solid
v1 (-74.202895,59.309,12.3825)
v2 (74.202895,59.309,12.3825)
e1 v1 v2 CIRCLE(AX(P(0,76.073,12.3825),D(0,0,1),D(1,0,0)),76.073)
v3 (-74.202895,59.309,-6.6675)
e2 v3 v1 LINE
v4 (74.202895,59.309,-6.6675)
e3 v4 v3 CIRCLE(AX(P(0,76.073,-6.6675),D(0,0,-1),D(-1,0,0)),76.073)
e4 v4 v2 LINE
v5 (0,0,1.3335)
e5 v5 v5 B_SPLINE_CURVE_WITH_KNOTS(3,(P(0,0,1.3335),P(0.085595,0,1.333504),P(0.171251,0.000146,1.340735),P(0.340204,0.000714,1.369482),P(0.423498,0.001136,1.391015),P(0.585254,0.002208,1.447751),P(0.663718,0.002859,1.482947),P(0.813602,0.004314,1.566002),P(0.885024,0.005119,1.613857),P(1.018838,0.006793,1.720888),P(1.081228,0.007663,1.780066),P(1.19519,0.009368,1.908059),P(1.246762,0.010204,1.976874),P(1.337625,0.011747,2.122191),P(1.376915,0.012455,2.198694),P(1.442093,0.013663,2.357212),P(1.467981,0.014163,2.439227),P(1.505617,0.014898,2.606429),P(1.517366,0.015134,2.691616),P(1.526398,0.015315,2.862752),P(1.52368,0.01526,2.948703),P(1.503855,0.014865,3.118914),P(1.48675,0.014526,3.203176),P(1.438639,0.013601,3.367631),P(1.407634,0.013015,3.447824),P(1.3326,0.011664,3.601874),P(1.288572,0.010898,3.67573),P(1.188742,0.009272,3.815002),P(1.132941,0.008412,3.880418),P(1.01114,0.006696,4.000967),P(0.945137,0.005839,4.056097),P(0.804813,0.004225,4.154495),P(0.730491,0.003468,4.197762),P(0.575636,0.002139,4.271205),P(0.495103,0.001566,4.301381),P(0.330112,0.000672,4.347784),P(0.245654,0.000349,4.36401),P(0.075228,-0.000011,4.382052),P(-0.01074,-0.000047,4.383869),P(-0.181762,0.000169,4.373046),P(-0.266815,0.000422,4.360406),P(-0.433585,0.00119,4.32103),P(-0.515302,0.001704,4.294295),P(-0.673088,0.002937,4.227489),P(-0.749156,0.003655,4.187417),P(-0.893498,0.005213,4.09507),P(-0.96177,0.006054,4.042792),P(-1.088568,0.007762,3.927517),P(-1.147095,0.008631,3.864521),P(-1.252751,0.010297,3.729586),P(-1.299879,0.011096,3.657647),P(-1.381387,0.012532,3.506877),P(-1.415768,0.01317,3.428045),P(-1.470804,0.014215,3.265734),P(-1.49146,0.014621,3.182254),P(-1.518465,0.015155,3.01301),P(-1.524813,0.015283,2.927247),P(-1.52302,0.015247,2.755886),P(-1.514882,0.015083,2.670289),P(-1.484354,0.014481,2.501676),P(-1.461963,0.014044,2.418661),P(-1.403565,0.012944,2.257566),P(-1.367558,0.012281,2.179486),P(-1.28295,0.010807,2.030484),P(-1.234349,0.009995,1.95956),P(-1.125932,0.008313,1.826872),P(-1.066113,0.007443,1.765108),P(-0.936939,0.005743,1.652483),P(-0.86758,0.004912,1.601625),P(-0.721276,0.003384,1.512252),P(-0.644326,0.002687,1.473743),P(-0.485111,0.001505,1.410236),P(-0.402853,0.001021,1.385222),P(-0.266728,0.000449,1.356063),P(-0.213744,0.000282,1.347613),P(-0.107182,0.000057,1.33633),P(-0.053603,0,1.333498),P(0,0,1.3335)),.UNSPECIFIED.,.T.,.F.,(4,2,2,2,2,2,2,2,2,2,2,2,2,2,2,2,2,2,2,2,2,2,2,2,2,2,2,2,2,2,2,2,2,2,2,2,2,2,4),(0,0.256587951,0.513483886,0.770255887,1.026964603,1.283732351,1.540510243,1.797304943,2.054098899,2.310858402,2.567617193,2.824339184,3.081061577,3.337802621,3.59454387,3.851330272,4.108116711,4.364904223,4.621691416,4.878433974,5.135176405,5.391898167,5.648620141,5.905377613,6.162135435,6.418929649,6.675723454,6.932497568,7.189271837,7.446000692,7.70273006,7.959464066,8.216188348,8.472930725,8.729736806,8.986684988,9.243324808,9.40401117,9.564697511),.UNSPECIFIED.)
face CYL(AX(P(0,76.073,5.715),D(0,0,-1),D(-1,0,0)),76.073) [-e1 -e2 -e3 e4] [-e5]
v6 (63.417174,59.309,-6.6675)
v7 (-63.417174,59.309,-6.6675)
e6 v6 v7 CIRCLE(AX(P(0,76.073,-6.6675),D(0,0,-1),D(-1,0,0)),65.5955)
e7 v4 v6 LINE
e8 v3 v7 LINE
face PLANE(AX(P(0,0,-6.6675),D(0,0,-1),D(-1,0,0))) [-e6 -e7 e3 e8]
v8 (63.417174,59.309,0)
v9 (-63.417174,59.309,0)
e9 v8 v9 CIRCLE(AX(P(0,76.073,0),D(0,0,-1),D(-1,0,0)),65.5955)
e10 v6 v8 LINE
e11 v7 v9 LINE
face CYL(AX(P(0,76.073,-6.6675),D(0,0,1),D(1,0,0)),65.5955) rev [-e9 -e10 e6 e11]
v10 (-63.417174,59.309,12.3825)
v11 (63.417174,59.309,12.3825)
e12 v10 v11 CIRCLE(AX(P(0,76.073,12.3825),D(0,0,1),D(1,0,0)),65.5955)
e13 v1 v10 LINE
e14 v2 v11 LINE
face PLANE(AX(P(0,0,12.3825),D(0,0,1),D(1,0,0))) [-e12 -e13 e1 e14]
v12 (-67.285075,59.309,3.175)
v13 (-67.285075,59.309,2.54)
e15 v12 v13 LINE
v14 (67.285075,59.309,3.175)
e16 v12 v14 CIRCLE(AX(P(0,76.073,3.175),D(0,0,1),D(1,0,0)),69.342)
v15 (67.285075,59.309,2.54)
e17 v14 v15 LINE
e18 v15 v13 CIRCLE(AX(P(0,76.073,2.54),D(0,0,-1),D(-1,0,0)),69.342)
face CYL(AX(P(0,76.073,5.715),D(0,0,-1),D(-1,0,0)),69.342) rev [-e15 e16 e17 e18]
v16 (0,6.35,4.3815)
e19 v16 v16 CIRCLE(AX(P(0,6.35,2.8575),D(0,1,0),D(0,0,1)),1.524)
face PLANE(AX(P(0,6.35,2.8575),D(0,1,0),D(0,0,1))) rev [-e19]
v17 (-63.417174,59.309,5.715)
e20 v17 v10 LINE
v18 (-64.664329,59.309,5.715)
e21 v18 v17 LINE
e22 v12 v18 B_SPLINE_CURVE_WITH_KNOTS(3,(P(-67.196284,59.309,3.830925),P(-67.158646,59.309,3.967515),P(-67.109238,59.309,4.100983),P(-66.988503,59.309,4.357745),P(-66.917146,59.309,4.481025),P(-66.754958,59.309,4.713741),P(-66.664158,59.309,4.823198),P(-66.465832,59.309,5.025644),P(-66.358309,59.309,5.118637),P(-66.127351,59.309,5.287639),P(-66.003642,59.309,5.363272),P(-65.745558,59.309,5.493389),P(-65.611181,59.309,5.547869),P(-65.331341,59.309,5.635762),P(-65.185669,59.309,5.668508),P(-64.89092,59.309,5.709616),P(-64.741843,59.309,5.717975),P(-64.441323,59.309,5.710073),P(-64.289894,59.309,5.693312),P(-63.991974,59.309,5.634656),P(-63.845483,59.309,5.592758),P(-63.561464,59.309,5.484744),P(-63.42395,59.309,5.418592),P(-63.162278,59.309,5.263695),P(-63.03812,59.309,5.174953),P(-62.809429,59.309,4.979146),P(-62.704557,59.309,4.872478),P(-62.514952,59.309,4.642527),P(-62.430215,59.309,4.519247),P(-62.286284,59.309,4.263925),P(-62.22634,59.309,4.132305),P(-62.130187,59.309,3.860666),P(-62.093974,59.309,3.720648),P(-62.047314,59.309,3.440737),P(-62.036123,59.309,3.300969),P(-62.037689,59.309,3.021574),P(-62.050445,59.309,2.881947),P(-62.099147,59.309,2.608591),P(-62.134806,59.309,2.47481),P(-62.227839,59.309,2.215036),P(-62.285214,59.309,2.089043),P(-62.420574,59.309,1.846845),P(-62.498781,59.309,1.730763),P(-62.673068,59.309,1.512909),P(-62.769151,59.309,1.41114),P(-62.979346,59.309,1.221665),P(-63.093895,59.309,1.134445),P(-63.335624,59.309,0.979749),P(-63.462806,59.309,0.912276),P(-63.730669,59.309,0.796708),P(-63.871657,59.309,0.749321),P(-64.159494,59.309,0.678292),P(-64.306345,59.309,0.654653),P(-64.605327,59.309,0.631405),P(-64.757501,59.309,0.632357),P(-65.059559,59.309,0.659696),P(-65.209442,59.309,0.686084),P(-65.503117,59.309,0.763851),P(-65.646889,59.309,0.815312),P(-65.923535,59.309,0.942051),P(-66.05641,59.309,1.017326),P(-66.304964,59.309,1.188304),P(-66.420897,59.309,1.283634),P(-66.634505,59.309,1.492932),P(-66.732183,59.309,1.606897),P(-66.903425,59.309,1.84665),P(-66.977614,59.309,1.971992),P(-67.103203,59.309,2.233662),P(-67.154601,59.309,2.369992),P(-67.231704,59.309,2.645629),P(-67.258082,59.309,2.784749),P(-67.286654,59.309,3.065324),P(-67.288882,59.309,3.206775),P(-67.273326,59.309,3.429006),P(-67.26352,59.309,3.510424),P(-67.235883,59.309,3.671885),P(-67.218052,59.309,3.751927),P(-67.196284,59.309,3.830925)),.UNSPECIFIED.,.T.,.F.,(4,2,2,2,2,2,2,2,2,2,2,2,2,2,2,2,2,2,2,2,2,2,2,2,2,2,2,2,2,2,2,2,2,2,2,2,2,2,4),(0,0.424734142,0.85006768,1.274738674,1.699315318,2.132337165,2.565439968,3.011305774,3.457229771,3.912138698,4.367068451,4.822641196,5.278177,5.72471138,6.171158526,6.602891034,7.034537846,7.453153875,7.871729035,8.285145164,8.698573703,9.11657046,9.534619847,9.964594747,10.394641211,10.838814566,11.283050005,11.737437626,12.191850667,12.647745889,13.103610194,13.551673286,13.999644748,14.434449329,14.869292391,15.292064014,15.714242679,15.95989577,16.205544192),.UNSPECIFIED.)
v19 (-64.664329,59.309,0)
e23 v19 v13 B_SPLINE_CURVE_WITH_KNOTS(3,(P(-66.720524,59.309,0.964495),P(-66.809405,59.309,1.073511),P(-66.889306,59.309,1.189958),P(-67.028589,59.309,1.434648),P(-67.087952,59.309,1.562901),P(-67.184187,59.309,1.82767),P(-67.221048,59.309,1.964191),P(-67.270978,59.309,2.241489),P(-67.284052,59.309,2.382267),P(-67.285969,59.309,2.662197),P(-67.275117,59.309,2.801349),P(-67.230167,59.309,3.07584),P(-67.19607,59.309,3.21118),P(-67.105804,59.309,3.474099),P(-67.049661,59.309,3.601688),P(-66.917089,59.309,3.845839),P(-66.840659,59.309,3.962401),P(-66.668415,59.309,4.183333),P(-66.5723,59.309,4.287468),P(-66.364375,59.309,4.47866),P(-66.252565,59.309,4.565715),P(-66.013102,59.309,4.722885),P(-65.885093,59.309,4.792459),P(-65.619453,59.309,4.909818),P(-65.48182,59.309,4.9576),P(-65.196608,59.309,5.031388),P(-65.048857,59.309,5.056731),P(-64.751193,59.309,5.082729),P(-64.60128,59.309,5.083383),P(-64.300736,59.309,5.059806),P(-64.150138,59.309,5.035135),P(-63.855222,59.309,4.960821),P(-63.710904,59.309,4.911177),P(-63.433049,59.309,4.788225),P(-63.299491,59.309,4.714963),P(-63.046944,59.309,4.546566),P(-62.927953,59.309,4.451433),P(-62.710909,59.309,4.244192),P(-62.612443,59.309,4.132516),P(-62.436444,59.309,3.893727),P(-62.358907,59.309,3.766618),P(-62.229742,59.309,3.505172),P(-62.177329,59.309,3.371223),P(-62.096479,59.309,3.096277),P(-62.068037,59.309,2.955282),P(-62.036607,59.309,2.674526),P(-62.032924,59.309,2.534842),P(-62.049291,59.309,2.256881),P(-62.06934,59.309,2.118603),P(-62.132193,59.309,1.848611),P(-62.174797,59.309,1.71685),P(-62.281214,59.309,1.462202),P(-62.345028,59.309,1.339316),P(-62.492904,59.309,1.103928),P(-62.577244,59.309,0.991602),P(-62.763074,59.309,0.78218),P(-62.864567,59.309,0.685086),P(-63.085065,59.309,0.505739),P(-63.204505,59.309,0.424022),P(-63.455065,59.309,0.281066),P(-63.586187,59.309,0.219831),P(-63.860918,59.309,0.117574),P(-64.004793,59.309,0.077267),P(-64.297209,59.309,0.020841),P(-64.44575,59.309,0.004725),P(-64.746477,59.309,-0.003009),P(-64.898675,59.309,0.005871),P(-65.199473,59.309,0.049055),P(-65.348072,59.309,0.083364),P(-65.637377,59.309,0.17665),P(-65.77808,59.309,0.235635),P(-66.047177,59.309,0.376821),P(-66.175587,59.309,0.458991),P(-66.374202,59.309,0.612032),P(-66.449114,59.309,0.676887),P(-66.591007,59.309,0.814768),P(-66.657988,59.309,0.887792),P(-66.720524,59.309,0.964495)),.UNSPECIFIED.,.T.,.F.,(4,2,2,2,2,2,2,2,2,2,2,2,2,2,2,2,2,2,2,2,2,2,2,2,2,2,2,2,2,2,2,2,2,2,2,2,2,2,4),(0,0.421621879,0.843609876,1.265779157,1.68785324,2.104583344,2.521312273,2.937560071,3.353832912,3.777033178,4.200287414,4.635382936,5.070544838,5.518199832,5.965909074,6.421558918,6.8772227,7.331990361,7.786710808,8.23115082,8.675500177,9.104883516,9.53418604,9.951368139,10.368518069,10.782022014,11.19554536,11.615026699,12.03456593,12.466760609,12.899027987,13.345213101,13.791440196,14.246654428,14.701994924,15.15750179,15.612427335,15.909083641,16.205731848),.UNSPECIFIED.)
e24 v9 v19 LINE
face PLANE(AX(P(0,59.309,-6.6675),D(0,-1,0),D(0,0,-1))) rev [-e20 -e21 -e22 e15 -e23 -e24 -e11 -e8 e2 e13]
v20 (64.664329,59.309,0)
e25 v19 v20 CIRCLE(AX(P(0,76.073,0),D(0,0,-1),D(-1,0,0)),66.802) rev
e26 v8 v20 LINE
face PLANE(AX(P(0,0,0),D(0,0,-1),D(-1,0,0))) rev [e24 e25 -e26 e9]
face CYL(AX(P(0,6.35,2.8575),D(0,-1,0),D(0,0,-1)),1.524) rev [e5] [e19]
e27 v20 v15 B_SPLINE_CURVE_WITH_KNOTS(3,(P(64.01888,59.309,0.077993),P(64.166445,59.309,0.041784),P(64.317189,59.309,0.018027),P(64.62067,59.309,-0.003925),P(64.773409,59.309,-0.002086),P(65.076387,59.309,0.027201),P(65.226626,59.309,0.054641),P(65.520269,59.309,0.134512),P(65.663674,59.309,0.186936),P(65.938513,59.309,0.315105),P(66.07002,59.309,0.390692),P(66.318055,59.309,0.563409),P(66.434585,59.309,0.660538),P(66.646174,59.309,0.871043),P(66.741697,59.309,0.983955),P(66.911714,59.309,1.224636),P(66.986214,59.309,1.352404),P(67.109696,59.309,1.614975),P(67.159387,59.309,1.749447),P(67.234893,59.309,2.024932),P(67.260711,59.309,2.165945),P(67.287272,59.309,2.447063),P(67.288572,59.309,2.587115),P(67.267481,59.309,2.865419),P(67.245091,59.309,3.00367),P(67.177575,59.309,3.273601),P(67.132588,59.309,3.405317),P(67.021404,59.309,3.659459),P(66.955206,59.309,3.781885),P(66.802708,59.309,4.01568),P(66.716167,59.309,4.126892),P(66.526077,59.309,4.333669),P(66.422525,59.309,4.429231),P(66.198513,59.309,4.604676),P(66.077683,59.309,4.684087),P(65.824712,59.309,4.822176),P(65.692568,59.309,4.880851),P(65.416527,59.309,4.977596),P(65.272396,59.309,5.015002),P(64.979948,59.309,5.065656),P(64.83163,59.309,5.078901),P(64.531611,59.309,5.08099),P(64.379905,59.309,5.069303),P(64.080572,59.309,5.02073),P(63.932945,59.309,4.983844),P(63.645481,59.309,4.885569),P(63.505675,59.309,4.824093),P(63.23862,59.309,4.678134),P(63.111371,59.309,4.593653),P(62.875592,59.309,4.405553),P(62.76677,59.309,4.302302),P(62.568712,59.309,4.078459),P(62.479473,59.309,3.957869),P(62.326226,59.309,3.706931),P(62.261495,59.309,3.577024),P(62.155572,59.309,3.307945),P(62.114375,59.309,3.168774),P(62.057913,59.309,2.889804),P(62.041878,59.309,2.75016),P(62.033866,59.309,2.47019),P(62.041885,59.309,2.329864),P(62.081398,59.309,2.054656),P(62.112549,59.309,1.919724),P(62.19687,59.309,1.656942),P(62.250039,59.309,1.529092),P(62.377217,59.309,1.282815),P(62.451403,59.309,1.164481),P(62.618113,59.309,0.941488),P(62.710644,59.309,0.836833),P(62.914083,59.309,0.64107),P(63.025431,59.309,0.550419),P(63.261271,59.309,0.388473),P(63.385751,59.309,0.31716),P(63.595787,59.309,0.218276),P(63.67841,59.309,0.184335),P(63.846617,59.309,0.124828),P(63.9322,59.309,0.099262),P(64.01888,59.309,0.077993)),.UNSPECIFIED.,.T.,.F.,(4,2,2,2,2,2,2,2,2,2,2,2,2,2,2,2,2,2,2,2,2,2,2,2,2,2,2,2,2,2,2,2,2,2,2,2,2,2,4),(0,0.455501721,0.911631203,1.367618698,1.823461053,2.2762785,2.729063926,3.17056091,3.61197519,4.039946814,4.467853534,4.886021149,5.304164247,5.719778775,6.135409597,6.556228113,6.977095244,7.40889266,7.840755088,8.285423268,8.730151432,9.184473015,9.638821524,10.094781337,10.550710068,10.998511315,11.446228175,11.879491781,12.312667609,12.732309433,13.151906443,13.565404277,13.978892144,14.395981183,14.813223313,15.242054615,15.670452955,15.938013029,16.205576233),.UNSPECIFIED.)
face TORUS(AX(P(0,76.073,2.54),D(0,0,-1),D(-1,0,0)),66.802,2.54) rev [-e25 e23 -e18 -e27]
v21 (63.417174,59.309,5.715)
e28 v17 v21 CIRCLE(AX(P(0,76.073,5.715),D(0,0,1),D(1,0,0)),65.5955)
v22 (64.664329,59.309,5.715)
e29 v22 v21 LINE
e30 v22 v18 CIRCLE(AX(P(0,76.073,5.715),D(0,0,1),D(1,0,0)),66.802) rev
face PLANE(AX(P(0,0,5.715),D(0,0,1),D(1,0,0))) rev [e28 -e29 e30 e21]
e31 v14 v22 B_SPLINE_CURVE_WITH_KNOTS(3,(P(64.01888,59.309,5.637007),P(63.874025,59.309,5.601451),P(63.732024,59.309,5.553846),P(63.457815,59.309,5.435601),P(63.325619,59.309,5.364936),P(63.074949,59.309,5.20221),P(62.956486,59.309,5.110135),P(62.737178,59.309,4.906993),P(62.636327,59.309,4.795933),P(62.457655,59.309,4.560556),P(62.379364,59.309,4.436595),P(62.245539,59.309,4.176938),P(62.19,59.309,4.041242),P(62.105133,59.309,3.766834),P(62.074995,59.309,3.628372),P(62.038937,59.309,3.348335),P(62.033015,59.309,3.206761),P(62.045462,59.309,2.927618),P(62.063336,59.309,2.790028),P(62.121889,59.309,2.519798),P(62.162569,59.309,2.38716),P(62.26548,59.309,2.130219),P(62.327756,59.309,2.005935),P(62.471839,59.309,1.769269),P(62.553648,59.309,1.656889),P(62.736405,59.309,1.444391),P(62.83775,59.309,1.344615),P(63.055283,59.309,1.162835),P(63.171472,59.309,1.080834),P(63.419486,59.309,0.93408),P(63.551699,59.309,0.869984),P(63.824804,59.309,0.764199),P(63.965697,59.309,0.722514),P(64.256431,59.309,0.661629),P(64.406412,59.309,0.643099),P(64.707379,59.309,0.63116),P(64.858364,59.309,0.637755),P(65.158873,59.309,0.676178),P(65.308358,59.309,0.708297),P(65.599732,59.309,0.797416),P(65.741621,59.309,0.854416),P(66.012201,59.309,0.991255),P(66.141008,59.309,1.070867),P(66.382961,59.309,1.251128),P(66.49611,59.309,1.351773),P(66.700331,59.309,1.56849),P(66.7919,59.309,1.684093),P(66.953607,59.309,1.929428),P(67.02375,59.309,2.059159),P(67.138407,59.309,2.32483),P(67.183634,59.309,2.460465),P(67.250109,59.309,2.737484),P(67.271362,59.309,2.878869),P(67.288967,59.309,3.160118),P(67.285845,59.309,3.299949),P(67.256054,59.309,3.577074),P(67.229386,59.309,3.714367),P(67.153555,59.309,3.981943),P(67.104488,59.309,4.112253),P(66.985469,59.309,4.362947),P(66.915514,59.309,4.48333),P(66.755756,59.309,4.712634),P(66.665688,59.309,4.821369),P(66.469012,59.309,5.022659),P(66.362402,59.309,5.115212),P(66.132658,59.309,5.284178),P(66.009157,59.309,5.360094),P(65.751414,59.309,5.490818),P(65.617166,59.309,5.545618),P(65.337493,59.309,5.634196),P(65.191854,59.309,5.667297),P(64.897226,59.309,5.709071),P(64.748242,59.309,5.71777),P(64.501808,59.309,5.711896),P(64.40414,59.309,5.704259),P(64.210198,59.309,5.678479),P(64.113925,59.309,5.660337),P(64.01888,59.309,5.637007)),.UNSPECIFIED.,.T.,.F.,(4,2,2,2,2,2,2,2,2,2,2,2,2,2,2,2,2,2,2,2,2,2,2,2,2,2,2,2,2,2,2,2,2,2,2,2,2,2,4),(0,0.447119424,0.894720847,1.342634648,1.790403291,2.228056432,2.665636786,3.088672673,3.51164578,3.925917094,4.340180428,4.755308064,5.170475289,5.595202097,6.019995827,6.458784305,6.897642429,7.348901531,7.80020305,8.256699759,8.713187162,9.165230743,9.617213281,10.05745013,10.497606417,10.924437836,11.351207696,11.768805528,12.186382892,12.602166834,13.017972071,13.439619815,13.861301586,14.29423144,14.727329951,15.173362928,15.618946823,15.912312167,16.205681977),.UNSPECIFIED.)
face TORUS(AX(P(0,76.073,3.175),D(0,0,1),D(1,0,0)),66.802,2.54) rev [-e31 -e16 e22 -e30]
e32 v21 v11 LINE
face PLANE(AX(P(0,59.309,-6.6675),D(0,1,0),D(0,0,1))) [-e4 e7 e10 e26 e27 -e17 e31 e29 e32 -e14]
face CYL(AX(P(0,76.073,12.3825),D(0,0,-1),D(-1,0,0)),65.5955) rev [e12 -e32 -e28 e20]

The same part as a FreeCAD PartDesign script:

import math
import FreeCAD as App
import Part
import Sketcher

V = App.Vector
Q = App.Units.Quantity


def edges_at(feature, points):
    """Names of the edges that pass closest to the given points."""
    edges = feature.Shape.Edges
    near = lambda p: min(range(len(edges)), key=lambda i: edges[i].distToShape(Part.Vertex(*p))[0])
    return sorted({f"Edge{near(p) + 1}" for p in points})

doc = App.newDocument("Part")
body = doc.addObject("PartDesign::Body", "Body")

# Sketch on XY plane
sketch1 = body.newObject("Sketcher::SketchObject", "Sketch")
sketch1.AttachmentSupport = (doc.getObject("XY_Plane"), [""])
sketch1.MapMode = "FlatFace"
sketch1.addGeometry([
    Part.ArcOfCircle(Part.Circle(V(0, 76, 0), V(0, 0, 1), 69), math.radians(180), math.radians(360)),
    Part.LineSegment(V(-69, 76, 0), V(-76, 76, 0)),
    Part.ArcOfCircle(Part.Circle(V(0, 76, 0), V(0, 0, 1), 76), math.radians(180), math.radians(360)),
    Part.LineSegment(V(76, 76, 0), V(69, 76, 0)),
], False)
sketch1.addConstraint([
    Sketcher.Constraint("Coincident", 0, 1, 1, 1),
    Sketcher.Constraint("Coincident", 1, 2, 2, 1),
    Sketcher.Constraint("Coincident", 2, 2, 3, 1),
    Sketcher.Constraint("Coincident", 3, 2, 0, 2),
    Sketcher.Constraint("Horizontal", 1),
    Sketcher.Constraint("Horizontal", 3),
    Sketcher.Constraint("Coincident", 2, 3, 0, 3),
    Sketcher.Constraint("Symmetric", 1, 2, 2, 2, -2),
    Sketcher.Constraint("Horizontal", 2, 3, 0, 1),
    Sketcher.Constraint("Radius", 0, Q("2.73 in")),
    Sketcher.Constraint("Radius", 2, Q("2.995 in")),
    Sketcher.Constraint("DistanceY", -1, 1, 0, 3, Q("2.995 in")),
])
pad1 = body.newObject("PartDesign::Pad", "Pad")
pad1.Profile = sketch1
pad1.Length = Q("0.225 in")

# Sketch on XY plane
sketch2 = body.newObject("Sketcher::SketchObject", "Sketch001")
sketch2.AttachmentSupport = (doc.getObject("XY_Plane"), [""])
sketch2.MapMode = "FlatFace"
sketch2.AttachmentOffset = App.Placement(V(0, 0, 0.225 * 25.4), App.Rotation())
sketch2.addGeometry([
    Part.ArcOfCircle(Part.Circle(V(0, 76, 0), V(0, 0, 1), 66), math.radians(180), math.radians(360)),
    Part.LineSegment(V(-66, 76, 0), V(-76, 76, 0)),
    Part.ArcOfCircle(Part.Circle(V(0, 76, 0), V(0, 0, 1), 76), math.radians(180), math.radians(360)),
    Part.LineSegment(V(76, 76, 0), V(66, 76, 0)),
], False)
sketch2.addConstraint([
    Sketcher.Constraint("Coincident", 0, 1, 1, 1),
    Sketcher.Constraint("Coincident", 1, 2, 2, 1),
    Sketcher.Constraint("Coincident", 2, 2, 3, 1),
    Sketcher.Constraint("Coincident", 3, 2, 0, 2),
    Sketcher.Constraint("Horizontal", 1),
    Sketcher.Constraint("Horizontal", 3),
    Sketcher.Constraint("Coincident", 2, 3, 0, 3),
    Sketcher.Constraint("Symmetric", 1, 2, 2, 2, -2),
    Sketcher.Constraint("Horizontal", 2, 3, 0, 1),
    Sketcher.Constraint("Radius", 2, Q("2.995 in")),
    Sketcher.Constraint("Radius", 0, Q("2.5825 in")),
    Sketcher.Constraint("DistanceY", -1, 1, 0, 3, Q("2.995 in")),
])
pad2 = body.newObject("PartDesign::Pad", "Pad001")
pad2.Profile = sketch2
pad2.Length = Q("0.2625 in")

# Sketch on XY plane
sketch3 = body.newObject("Sketcher::SketchObject", "Sketch002")
sketch3.AttachmentSupport = (doc.getObject("XY_Plane"), [""])
sketch3.MapMode = "FlatFace"
sketch3.AttachmentOffset = App.Placement(V(0, 0, -0.2625 * 25.4), App.Rotation())
sketch3.addGeometry([
    Part.ArcOfCircle(Part.Circle(V(0, 76, 0), V(0, 0, 1), 66), math.radians(180), math.radians(360)),
    Part.LineSegment(V(66, 76, 0), V(76, 76, 0)),
    Part.ArcOfCircle(Part.Circle(V(0, 76, 0), V(0, 0, 1), 76), math.radians(180), math.radians(360)),
    Part.LineSegment(V(-76, 76, 0), V(-66, 76, 0)),
], False)
sketch3.addConstraint([
    Sketcher.Constraint("Coincident", 0, 2, 1, 1),
    Sketcher.Constraint("Coincident", 1, 2, 2, 2),
    Sketcher.Constraint("Coincident", 2, 1, 3, 1),
    Sketcher.Constraint("Coincident", 3, 2, 0, 1),
    Sketcher.Constraint("Horizontal", 1),
    Sketcher.Constraint("Horizontal", 3),
    Sketcher.Constraint("Coincident", 2, 3, 0, 3),
    Sketcher.Constraint("Symmetric", 1, 2, 2, 1, -2),
    Sketcher.Constraint("Horizontal", 2, 3, 0, 2),
    Sketcher.Constraint("Radius", 2, Q("2.995 in")),
    Sketcher.Constraint("Radius", 0, Q("2.5825 in")),
    Sketcher.Constraint("DistanceY", -1, 1, 0, 3, Q("2.995 in")),
])
pad3 = body.newObject("PartDesign::Pad", "Pad002")
pad3.Profile = sketch3
pad3.Length = Q("0.2625 in")
doc.recompute()

fillet = body.newObject("PartDesign::Fillet", "Fillet")
fillet.Base = (pad3, edges_at(pad3, [(0, 6.731, 5.715), (0, 6.731, 0)]))
fillet.Radius = Q("0.1 in")

# Sketch on XZ plane
sketch4 = body.newObject("Sketcher::SketchObject", "Sketch003")
sketch4.AttachmentSupport = (doc.getObject("XZ_Plane"), [""])
sketch4.MapMode = "FlatFace"
sketch4.addGeometry(Part.Circle(V(0, 2.9, 0), V(0, 0, 1), 1.5), False)
sketch4.addConstraint([
    Sketcher.Constraint("PointOnObject", 0, 3, -2),
    Sketcher.Constraint("Diameter", 0, Q("0.12 in")),
    Sketcher.Constraint("DistanceY", -1, 1, 0, 3, Q("0.1125 in")),
])
pocket1 = body.newObject("PartDesign::Pocket", "Pocket")
pocket1.Profile = sketch4
pocket1.Length = Q("0.25 in")

# Sketch on XY plane
sketch5 = body.newObject("Sketcher::SketchObject", "Sketch004")
sketch5.AttachmentSupport = (doc.getObject("XY_Plane"), [""])
sketch5.MapMode = "FlatFace"
sketch5.AttachmentOffset = App.Placement(V(0, 0, 0.4875 * 25.4), App.Rotation())
sketch5.addGeometry([
    Part.ArcOfCircle(Part.Circle(V(0, 76, 0), V(0, 0, 1), 76), math.radians(180), math.radians(192.73)),  # 0
    Part.LineSegment(V(-74, 59, 0), V(-63, 59, 0)),  # 1
    Part.ArcOfCircle(Part.Circle(V(0, 76, 0), V(0, 0, 1), 66), math.radians(-180), math.radians(-165.19)),  # 2
    Part.LineSegment(V(-66, 76, 0), V(-76, 76, 0)),  # 3
    Part.ArcOfCircle(Part.Circle(V(0, 76, 0), V(0, 0, 1), 76), math.radians(-12.73), math.radians(0)),  # 4
    Part.LineSegment(V(76, 76, 0), V(66, 76, 0)),  # 5
    Part.ArcOfCircle(Part.Circle(V(0, 76, 0), V(0, 0, 1), 66), math.radians(-14.81), math.radians(0)),  # 6
    Part.LineSegment(V(63, 59, 0), V(74, 59, 0)),  # 7
], False)
sketch5.addConstraint([
    Sketcher.Constraint("Coincident", 0, 2, 1, 1),
    Sketcher.Constraint("Coincident", 1, 2, 2, 2),
    Sketcher.Constraint("Coincident", 2, 1, 3, 1),
    Sketcher.Constraint("Coincident", 3, 2, 0, 1),
    Sketcher.Constraint("Coincident", 4, 2, 5, 1),
    Sketcher.Constraint("Coincident", 5, 2, 6, 2),
    Sketcher.Constraint("Coincident", 6, 1, 7, 1),
    Sketcher.Constraint("Coincident", 7, 2, 4, 1),
    Sketcher.Constraint("Horizontal", 1),
    Sketcher.Constraint("Horizontal", 3),
    Sketcher.Constraint("Horizontal", 5),
    Sketcher.Constraint("Horizontal", 7),
    Sketcher.Constraint("Coincident", 2, 3, 0, 3),
    Sketcher.Constraint("Coincident", 4, 3, 0, 3),
    Sketcher.Constraint("Coincident", 6, 3, 0, 3),
    Sketcher.Constraint("Equal", 0, 4),
    Sketcher.Constraint("Equal", 2, 6),
    Sketcher.Constraint("Symmetric", 3, 2, 4, 2, -2),
    Sketcher.Constraint("Horizontal", 6, 3, 2, 1),
    Sketcher.Constraint("Horizontal", 1, 2, 6, 1),
    Sketcher.Constraint("Radius", 0, Q("2.995 in")),
    Sketcher.Constraint("Radius", 2, Q("2.5825 in")),
    Sketcher.Constraint("DistanceY", 0, 2, 6, 3, Q("0.66 in")),
    Sketcher.Constraint("DistanceY", -1, 1, 0, 3, Q("2.995 in")),
])
pocket2 = body.newObject("PartDesign::Pocket", "Pocket001")
pocket2.Profile = sketch5
pocket2.Type = "ThroughAll"

doc.recompute()
